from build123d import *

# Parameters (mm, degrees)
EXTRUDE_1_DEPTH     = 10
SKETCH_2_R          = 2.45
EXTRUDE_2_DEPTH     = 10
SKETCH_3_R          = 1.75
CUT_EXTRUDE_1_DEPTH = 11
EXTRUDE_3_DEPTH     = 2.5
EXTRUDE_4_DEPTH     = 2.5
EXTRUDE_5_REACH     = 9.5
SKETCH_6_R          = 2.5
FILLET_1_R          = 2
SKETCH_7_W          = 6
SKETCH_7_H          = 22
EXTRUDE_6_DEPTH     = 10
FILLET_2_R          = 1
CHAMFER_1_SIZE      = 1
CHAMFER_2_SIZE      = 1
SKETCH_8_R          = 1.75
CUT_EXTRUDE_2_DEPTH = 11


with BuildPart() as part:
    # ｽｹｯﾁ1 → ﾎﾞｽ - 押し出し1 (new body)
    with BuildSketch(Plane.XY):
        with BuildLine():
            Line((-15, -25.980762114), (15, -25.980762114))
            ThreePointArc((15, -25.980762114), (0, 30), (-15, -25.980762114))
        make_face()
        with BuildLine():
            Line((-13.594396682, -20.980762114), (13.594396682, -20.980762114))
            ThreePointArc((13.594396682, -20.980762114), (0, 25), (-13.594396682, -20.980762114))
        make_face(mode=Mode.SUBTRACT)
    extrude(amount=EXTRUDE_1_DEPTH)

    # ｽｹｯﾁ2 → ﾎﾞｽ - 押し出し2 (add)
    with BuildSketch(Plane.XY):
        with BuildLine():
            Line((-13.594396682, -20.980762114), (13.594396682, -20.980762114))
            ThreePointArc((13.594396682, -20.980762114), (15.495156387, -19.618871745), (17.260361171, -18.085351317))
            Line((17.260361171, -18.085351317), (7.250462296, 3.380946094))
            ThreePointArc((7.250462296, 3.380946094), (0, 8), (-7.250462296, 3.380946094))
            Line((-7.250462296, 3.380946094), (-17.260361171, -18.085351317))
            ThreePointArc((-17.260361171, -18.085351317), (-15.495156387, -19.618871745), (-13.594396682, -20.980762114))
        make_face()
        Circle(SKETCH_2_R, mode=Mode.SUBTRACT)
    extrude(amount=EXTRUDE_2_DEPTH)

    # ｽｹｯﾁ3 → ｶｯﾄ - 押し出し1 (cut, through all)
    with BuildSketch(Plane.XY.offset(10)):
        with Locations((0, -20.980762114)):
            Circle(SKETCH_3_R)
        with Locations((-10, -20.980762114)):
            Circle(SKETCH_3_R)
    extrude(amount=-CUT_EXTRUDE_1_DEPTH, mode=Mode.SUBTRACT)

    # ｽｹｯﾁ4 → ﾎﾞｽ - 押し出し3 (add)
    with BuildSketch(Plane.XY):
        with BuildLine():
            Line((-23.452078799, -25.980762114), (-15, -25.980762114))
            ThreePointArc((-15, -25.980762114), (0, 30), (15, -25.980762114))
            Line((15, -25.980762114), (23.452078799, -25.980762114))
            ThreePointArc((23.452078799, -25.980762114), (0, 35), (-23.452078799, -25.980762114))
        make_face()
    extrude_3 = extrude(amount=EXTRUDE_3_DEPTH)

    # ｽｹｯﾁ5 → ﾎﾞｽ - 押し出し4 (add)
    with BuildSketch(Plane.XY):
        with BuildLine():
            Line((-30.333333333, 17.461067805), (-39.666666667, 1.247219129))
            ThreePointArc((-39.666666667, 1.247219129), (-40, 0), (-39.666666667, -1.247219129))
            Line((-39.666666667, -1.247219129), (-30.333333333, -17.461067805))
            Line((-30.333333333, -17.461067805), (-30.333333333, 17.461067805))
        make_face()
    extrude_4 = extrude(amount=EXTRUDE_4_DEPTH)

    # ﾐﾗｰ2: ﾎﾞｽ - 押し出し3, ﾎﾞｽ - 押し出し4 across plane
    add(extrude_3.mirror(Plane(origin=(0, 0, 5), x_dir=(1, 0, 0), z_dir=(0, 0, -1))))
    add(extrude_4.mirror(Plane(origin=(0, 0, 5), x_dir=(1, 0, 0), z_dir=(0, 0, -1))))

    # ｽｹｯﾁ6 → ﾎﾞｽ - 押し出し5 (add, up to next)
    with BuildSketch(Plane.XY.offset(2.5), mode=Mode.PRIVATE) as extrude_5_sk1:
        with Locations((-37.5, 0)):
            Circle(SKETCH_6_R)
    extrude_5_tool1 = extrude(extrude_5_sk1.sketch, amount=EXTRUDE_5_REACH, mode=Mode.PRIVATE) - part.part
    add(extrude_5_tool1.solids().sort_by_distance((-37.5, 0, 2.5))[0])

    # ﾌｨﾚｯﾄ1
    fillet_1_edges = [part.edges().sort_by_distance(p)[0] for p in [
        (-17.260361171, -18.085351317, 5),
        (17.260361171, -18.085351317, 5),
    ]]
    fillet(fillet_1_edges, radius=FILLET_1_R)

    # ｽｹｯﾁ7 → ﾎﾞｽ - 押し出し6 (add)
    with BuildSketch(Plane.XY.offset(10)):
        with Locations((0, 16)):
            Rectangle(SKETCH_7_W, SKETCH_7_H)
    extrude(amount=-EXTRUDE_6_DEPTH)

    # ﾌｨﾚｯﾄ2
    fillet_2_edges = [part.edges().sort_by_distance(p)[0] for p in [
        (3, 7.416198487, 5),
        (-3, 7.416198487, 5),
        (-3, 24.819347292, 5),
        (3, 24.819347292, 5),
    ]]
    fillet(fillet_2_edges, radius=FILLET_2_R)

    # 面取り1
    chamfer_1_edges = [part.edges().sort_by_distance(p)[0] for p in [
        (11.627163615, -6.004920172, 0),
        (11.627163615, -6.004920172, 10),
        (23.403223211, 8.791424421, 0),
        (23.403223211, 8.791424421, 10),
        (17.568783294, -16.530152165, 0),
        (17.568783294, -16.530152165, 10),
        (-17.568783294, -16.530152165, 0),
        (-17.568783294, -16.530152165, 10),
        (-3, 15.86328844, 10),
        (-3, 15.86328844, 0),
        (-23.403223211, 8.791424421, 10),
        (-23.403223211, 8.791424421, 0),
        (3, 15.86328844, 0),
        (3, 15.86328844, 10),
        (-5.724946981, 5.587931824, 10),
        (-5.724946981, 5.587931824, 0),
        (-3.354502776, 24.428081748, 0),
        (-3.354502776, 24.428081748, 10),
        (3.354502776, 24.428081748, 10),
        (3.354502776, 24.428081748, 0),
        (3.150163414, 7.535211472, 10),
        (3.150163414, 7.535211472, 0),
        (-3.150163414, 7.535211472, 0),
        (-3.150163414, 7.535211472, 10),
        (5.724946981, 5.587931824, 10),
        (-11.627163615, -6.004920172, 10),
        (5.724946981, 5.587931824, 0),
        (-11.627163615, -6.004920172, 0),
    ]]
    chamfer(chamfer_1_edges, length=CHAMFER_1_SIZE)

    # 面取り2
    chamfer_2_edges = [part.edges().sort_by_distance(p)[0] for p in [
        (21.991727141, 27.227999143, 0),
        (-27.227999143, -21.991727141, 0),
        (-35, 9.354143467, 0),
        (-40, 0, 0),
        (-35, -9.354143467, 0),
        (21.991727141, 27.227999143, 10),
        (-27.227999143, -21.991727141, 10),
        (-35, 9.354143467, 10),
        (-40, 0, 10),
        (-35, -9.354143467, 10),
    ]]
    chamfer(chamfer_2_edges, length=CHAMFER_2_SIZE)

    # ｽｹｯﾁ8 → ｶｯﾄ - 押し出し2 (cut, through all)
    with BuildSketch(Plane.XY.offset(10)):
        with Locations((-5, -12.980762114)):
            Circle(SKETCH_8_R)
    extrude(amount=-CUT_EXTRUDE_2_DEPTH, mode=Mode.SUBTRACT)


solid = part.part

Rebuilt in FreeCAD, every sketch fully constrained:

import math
import FreeCAD as App
import Part
import Sketcher
from FreeCAD import Vector
Q = App.Units.Quantity


def edges_at(feature, points):
    """Names of the edges that pass closest to the given points."""
    edges = feature.Shape.Edges
    near = lambda p: min(range(len(edges)), key=lambda i: edges[i].distToShape(Part.Vertex(*p))[0])
    return sorted({f"Edge{near(p) + 1}" for p in points})

doc = App.newDocument("Part")
body = doc.addObject("PartDesign::Body", "Body")

# Sketch on XY plane
sketch1 = body.newObject("Sketcher::SketchObject", "Sketch")
sketch1.AttachmentSupport = (doc.getObject("XY_Plane"), [""])
sketch1.MapMode = "FlatFace"
sketch1.addGeometry(Part.LineSegment(Vector(-15, -26, 0), Vector(15, -26, 0)), False)
sketch1.addGeometry(Part.ArcOfCircle(Part.Circle(Vector(0, 0, 0), Vector(0, 0, 1), 30), math.radians(-60), math.radians(240)), False)
sketch1.addGeometry(Part.LineSegment(Vector(14, -21, 0), Vector(-14, -21, 0)), False)
sketch1.addGeometry(Part.ArcOfCircle(Part.Circle(Vector(0, 0, 0), Vector(0, 0, 1), 25), math.radians(-57), math.radians(237)), False)
sketch1.addConstraint(Sketcher.Constraint("Coincident", 0, 1, 1, 2))
sketch1.addConstraint(Sketcher.Constraint("Coincident", 1, 1, 0, 2))
sketch1.addConstraint(Sketcher.Constraint("Coincident", 2, 1, 3, 1))
sketch1.addConstraint(Sketcher.Constraint("Coincident", 3, 2, 2, 2))
sketch1.addConstraint(Sketcher.Constraint("Horizontal", 0))
sketch1.addConstraint(Sketcher.Constraint("Horizontal", 2))
sketch1.addConstraint(Sketcher.Constraint("Coincident", 1, 3, -1, 1))
sketch1.addConstraint(Sketcher.Constraint("Coincident", 3, 3, -1, 1))
sketch1.addConstraint(Sketcher.Constraint("Radius", 1, Q("30 mm")))
sketch1.addConstraint(Sketcher.Constraint("Radius", 3, Q("25 mm")))
sketch1.addConstraint(Sketcher.Constraint("DistanceX", 0, 1, 0, 2, Q("30 mm")))
sketch1.addConstraint(Sketcher.Constraint("DistanceY", 1, 1, 2, 1, Q("5 mm")))
pad1 = body.newObject("PartDesign::Pad", "Pad")
pad1.Profile = sketch1
pad1.Length = 10

# Sketch on XY plane
sketch2 = body.newObject("Sketcher::SketchObject", "Sketch001")
sketch2.AttachmentSupport = (doc.getObject("XY_Plane"), [""])
sketch2.MapMode = "FlatFace"
sketch2.addGeometry(Part.LineSegment(Vector(-13.6, -21, 0), Vector(13.6, -21, 0)), False)
sketch2.addGeometry(Part.ArcOfCircle(Part.Circle(Vector(0, 0, 0), Vector(0, 0, 1), 25), math.radians(-57.06), math.radians(-46.34)), False)
sketch2.addGeometry(Part.LineSegment(Vector(17.3, -18.1, 0), Vector(7.3, 3.4, 0)), False)
sketch2.addGeometry(Part.ArcOfCircle(Part.Circle(Vector(0, 0, 0), Vector(0, 0, 1), 8), math.radians(25), math.radians(155)), False)
sketch2.addGeometry(Part.LineSegment(Vector(-7.3, 3.4, 0), Vector(-17.3, -18.1, 0)), False)
sketch2.addGeometry(Part.ArcOfCircle(Part.Circle(Vector(0, 0, 0), Vector(0, 0, 1), 25), math.radians(-133.66), math.radians(-122.94)), False)
sketch2.addGeometry(Part.Circle(Vector(0, 0, 0), Vector(0, 0, 1), 2.5), False)
sketch2.addConstraint(Sketcher.Constraint("Coincident", 0, 2, 1, 1))
sketch2.addConstraint(Sketcher.Constraint("Coincident", 1, 2, 2, 1))
sketch2.addConstraint(Sketcher.Constraint("Tangent", 2, 2, 3, 1))
sketch2.addConstraint(Sketcher.Constraint("Tangent", 3, 2, 4, 1))
sketch2.addConstraint(Sketcher.Constraint("Coincident", 4, 2, 5, 1))
sketch2.addConstraint(Sketcher.Constraint("Coincident", 5, 2, 0, 1))
sketch2.addConstraint(Sketcher.Constraint("Horizontal", 0))
sketch2.addConstraint(Sketcher.Constraint("Coincident", 1, 3, -1, 1))
sketch2.addConstraint(Sketcher.Constraint("Coincident", 3, 3, -1, 1))
sketch2.addConstraint(Sketcher.Constraint("Coincident", 5, 3, -1, 1))
sketch2.addConstraint(Sketcher.Constraint("Coincident", 6, 3, -1, 1))
sketch2.addConstraint(Sketcher.Constraint("Equal", 1, 5))
sketch2.addConstraint(Sketcher.Constraint("Horizontal", 2, 2, 3, 2))
sketch2.addConstraint(Sketcher.Constraint("Radius", 1, Q("25 mm")))
sketch2.addConstraint(Sketcher.Constraint("Radius", 3, Q("8 mm")))
sketch2.addConstraint(Sketcher.Constraint("Diameter", 6, Q("4.9 mm")))
sketch2.addConstraint(Sketcher.Constraint("Angle", 2, Q("115 deg")))
sketch2.addConstraint(Sketcher.Constraint("DistanceX", 0, 1, 0, 2, Q("27.188793 mm")))
pad2 = body.newObject("PartDesign::Pad", "Pad001")
pad2.Profile = sketch2
pad2.Length = 10

# Sketch on XY plane
sketch3 = body.newObject("Sketcher::SketchObject", "Sketch002")
sketch3.AttachmentSupport = (doc.getObject("XY_Plane"), [""])
sketch3.MapMode = "FlatFace"
sketch3.AttachmentOffset = App.Placement(Vector(0, 0, 10), App.Rotation())
sketch3.addGeometry(Part.Circle(Vector(0, -21, 0), Vector(0, 0, 1), 1.8), False)
sketch3.addGeometry(Part.Circle(Vector(-10, -21, 0), Vector(0, 0, 1), 1.8), False)
sketch3.addConstraint(Sketcher.Constraint("Equal", 0, 1))
sketch3.addConstraint(Sketcher.Constraint("PointOnObject", 0, 3, -2))
sketch3.addConstraint(Sketcher.Constraint("Horizontal", 0, 3, 1, 3))
sketch3.addConstraint(Sketcher.Constraint("Diameter", 0, Q("3.5 mm")))
sketch3.addConstraint(Sketcher.Constraint("DistanceX", 1, 3, -1, 1, Q("10 mm")))
sketch3.addConstraint(Sketcher.Constraint("DistanceY", 0, 3, -1, 1, Q("20.980762 mm")))
pocket1 = body.newObject("PartDesign::Pocket", "Pocket")
pocket1.Profile = sketch3
pocket1.Type = "ThroughAll"

# Sketch on XY plane
sketch4 = body.newObject("Sketcher::SketchObject", "Sketch003")
sketch4.AttachmentSupport = (doc.getObject("XY_Plane"), [""])
sketch4.MapMode = "FlatFace"
sketch4.addGeometry(Part.LineSegment(Vector(-23, -26, 0), Vector(-15, -26, 0)), False)
sketch4.addGeometry(Part.ArcOfCircle(Part.Circle(Vector(0, 0, 0), Vector(0, 0, 1), 30), math.radians(-60), math.radians(240)), False)
sketch4.addGeometry(Part.LineSegment(Vector(15, -26, 0), Vector(23, -26, 0)), False)
sketch4.addGeometry(Part.ArcOfCircle(Part.Circle(Vector(0, 0, 0), Vector(0, 0, 1), 35), math.radians(-48), math.radians(228)), False)
sketch4.addConstraint(Sketcher.Constraint("Coincident", 0, 2, 1, 2))
sketch4.addConstraint(Sketcher.Constraint("Coincident", 1, 1, 2, 1))
sketch4.addConstraint(Sketcher.Constraint("Coincident", 2, 2, 3, 1))
sketch4.addConstraint(Sketcher.Constraint("Coincident", 3, 2, 0, 1))
sketch4.addConstraint(Sketcher.Constraint("Horizontal", 0))
sketch4.addConstraint(Sketcher.Constraint("Horizontal", 2))
sketch4.addConstraint(Sketcher.Constraint("Coincident", 1, 3, -1, 1))
sketch4.addConstraint(Sketcher.Constraint("Coincident", 3, 3, -1, 1))
sketch4.addConstraint(Sketcher.Constraint("Horizontal", 0, 2, 1, 1))
sketch4.addConstraint(Sketcher.Constraint("Radius", 1, Q("30 mm")))
sketch4.addConstraint(Sketcher.Constraint("Radius", 3, Q("35 mm")))
sketch4.addConstraint(Sketcher.Constraint("DistanceX", 0, 2, -1, 1, Q("15 mm")))
pad3 = body.newObject("PartDesign::Pad", "Pad002")
pad3.Profile = sketch4
pad3.Length = 2.5

# Sketch on XY plane
sketch5 = body.newObject("Sketcher::SketchObject", "Sketch004")
sketch5.AttachmentSupport = (doc.getObject("XY_Plane"), [""])
sketch5.MapMode = "FlatFace"
sketch5.addGeometry(Part.LineSegment(Vector(-30.3, 17.5, 0), Vector(-39.7, 1.2, 0)), False)
sketch5.addGeometry(Part.ArcOfCircle(Part.Circle(Vector(-37.5, 0, 0), Vector(0, 0, 1), 2.5), math.radians(150), math.radians(210)), False)
sketch5.addGeometry(Part.LineSegment(Vector(-39.7, -1.2, 0), Vector(-30.3, -17.5, 0)), False)
sketch5.addGeometry(Part.LineSegment(Vector(-30.3, -17.5, 0), Vector(-30.3, 17.5, 0)), False)
sketch5.addConstraint(Sketcher.Constraint("Tangent", 0, 2, 1, 1))
sketch5.addConstraint(Sketcher.Constraint("Tangent", 1, 2, 2, 1))
sketch5.addConstraint(Sketcher.Constraint("Coincident", 2, 2, 3, 1))
sketch5.addConstraint(Sketcher.Constraint("Coincident", 3, 2, 0, 1))
sketch5.addConstraint(Sketcher.Constraint("Vertical", 3))
sketch5.addConstraint(Sketcher.Constraint("Symmetric", 0, 2, 1, 2, -1))
sketch5.addConstraint(Sketcher.Constraint("Radius", 1, Q("2.5 mm")))
sketch5.addConstraint(Sketcher.Constraint("DistanceX", 1, 3, -1, 1, Q("37.5 mm")))
sketch5.addConstraint(Sketcher.Constraint("DistanceY", 3, 1, 3, 2, Q("34.922136 mm")))
sketch5.addConstraint(Sketcher.Constraint("DistanceY", -1, 1, 0, 2, Q("1.247219 mm")))
pad4 = body.newObject("PartDesign::Pad", "Pad003")
pad4.Profile = sketch5
pad4.Length = 2.5
doc.recompute()

datumplane = body.newObject("PartDesign::Plane", "DatumPlane")
datumplane.AttachmentSupport = (doc.getObject("XY_Plane"), [""])
datumplane.MapMode = "FlatFace"
datumplane.AttachmentOffset = App.Placement(Vector(0, 0, 5), App.Rotation())
mirrored = body.newObject("PartDesign::Mirrored", "Mirrored")
mirrored.Originals = [pad3, pad4]
mirrored.MirrorPlane = (datumplane, [""])
body.Tip = mirrored

# Sketch on XY plane
sketch6 = body.newObject("Sketcher::SketchObject", "Sketch005")
sketch6.AttachmentSupport = (doc.getObject("XY_Plane"), [""])
sketch6.MapMode = "FlatFace"
sketch6.AttachmentOffset = App.Placement(Vector(0, 0, 2.5), App.Rotation())
sketch6.addGeometry(Part.Circle(Vector(-37.5, 0, 0), Vector(0, 0, 1), 2.5), False)
sketch6.addConstraint(Sketcher.Constraint("PointOnObject", 0, 3, -1))
sketch6.addConstraint(Sketcher.Constraint("Diameter", 0, Q("5 mm")))
sketch6.addConstraint(Sketcher.Constraint("DistanceX", 0, 3, -1, 1, Q("37.5 mm")))
pad5 = body.newObject("PartDesign::Pad", "Pad004")
pad5.Profile = sketch6
pad5.Type = "UpToFirst"
doc.recompute()

fillet = body.newObject("PartDesign::Fillet", "Fillet")
fillet.Base = (pad5, edges_at(pad5, [(-17.26, -18.085, 5), (17.26, -18.085, 5)]))
fillet.Radius = 2

# Sketch on XY plane
sketch7 = body.newObject("Sketcher::SketchObject", "Sketch006")
sketch7.AttachmentSupport = (doc.getObject("XY_Plane"), [""])
sketch7.MapMode = "FlatFace"
sketch7.AttachmentOffset = App.Placement(Vector(0, 0, 10), App.Rotation())
sketch7.addGeometry(Part.LineSegment(Vector(-3, 27, 0), Vector(-3, 5, 0)), False)
sketch7.addGeometry(Part.LineSegment(Vector(-3, 5, 0), Vector(3, 5, 0)), False)
sketch7.addGeometry(Part.LineSegment(Vector(3, 5, 0), Vector(3, 27, 0)), False)
sketch7.addGeometry(Part.LineSegment(Vector(3, 27, 0), Vector(-3, 27, 0)), False)
sketch7.addConstraint(Sketcher.Constraint("Coincident", 0, 2, 1, 1))
sketch7.addConstraint(Sketcher.Constraint("Coincident", 1, 2, 2, 1))
sketch7.addConstraint(Sketcher.Constraint("Coincident", 2, 2, 3, 1))
sketch7.addConstraint(Sketcher.Constraint("Coincident", 3, 2, 0, 1))
sketch7.addConstraint(Sketcher.Constraint("Vertical", 0))
sketch7.addConstraint(Sketcher.Constraint("Horizontal", 1))
sketch7.addConstraint(Sketcher.Constraint("Vertical", 2))
sketch7.addConstraint(Sketcher.Constraint("Horizontal", 3))
sketch7.addConstraint(Sketcher.Constraint("DistanceX", 1, 1, 1, 2, Q("6 mm")))
sketch7.addConstraint(Sketcher.Constraint("DistanceY", 0, 2, 0, 1, Q("22 mm")))
sketch7.addConstraint(Sketcher.Constraint("DistanceX", 0, 2, -1, 1, Q("3 mm")))
sketch7.addConstraint(Sketcher.Constraint("DistanceY", -1, 1, 0, 2, Q("5 mm")))
pad6 = body.newObject("PartDesign::Pad", "Pad005")
pad6.Profile = sketch7
pad6.Length = 10
pad6.Reversed = True
doc.recompute()

fillet2 = body.newObject("PartDesign::Fillet", "Fillet001")
fillet2.Base = (pad6, edges_at(pad6, [
    (3, 7.416, 5),
    (-3, 7.416, 5),
    (-3, 24.819, 5),
    (3, 24.819, 5),
]))
fillet2.Radius = 1
doc.recompute()

chamfer = body.newObject("PartDesign::Chamfer", "Chamfer")
chamfer.Base = (fillet2, edges_at(fillet2, [
    (11.627, -6.005, 0),
    (11.627, -6.005, 10),
    (23.403, 8.791, 0),
    (23.403, 8.791, 10),
    (17.569, -16.53, 0),
    (17.569, -16.53, 10),
    (-17.569, -16.53, 0),
    (-17.569, -16.53, 10),
    (-3, 15.863, 10),
    (-3, 15.863, 0),
    (-23.403, 8.791, 10),
    (-23.403, 8.791, 0),
    (3, 15.863, 0),
    (3, 15.863, 10),
    (-5.725, 5.588, 10),
    (-5.725, 5.588, 0),
    (-3.355, 24.428, 0),
    (-3.355, 24.428, 10),
    (3.355, 24.428, 10),
    (3.355, 24.428, 0),
    (3.15, 7.535, 10),
    (3.15, 7.535, 0),
    (-3.15, 7.535, 0),
    (-3.15, 7.535, 10),
    (5.725, 5.588, 10),
    (-11.627, -6.005, 10),
    (5.725, 5.588, 0),
    (-11.627, -6.005, 0),
]))
chamfer.Size = 1
doc.recompute()

chamfer2 = body.newObject("PartDesign::Chamfer", "Chamfer001")
chamfer2.Base = (chamfer, edges_at(chamfer, [
    (21.992, 27.228, 0),
    (-27.228, -21.992, 0),
    (-35, 9.354, 0),
    (-40, 0, 0),
    (-35, -9.354, 0),
    (21.992, 27.228, 10),
    (-27.228, -21.992, 10),
    (-35, 9.354, 10),
    (-40, 0, 10),
    (-35, -9.354, 10),
]))
chamfer2.Size = 1

# Sketch on XY plane
sketch8 = body.newObject("Sketcher::SketchObject", "Sketch007")
sketch8.AttachmentSupport = (doc.getObject("XY_Plane"), [""])
sketch8.MapMode = "FlatFace"
sketch8.AttachmentOffset = App.Placement(Vector(0, 0, 10), App.Rotation())
sketch8.addGeometry(Part.Circle(Vector(-5, -13, 0), Vector(0, 0, 1), 1.8), False)
sketch8.addConstraint(Sketcher.Constraint("Diameter", 0, Q("3.5 mm")))
sketch8.addConstraint(Sketcher.Constraint("DistanceX", 0, 3, -1, 1, Q("5 mm")))
sketch8.addConstraint(Sketcher.Constraint("DistanceY", 0, 3, -1, 1, Q("12.980762 mm")))
pocket2 = body.newObject("PartDesign::Pocket", "Pocket001")
pocket2.Profile = sketch8
pocket2.Type = "ThroughAll"

doc.recompute()
